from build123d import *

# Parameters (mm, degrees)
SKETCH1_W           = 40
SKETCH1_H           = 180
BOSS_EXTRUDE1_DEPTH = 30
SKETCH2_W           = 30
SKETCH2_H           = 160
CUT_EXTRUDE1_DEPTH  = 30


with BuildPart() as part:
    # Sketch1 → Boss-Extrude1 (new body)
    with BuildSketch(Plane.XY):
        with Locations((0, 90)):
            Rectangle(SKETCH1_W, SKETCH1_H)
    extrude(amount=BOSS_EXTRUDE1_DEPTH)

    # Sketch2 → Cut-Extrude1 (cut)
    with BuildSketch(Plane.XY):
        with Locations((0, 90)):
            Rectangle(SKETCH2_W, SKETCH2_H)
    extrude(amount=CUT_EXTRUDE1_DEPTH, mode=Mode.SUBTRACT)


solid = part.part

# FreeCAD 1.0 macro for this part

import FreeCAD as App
import Part
import Sketcher
Q = App.Units.Quantity

doc = App.newDocument("Part")
body = doc.addObject("PartDesign::Body", "Body")

sketch1 = doc.addObject("Sketcher::SketchObject", "Sketch")
body.addObject(sketch1)
sketch1.AttachmentSupport = (doc.XY_Plane, [""])
sketch1.MapMode = "FlatFace"
sketch1.addGeometry([
    Part.LineSegment(App.Vector(-20, 180, 0), App.Vector(-20, 0, 0)),
    Part.LineSegment(App.Vector(-20, 0, 0), App.Vector(20, 0, 0)),
    Part.LineSegment(App.Vector(20, 0, 0), App.Vector(20, 180, 0)),
    Part.LineSegment(App.Vector(20, 180, 0), App.Vector(-20, 180, 0)),
], False)
sketch1.addConstraint([
    Sketcher.Constraint("Coincident", 0, 2, 1, 1),
    Sketcher.Constraint("Coincident", 1, 2, 2, 1),
    Sketcher.Constraint("Coincident", 2, 2, 3, 1),
    Sketcher.Constraint("Coincident", 3, 2, 0, 1),
    Sketcher.Constraint("Vertical", 0),
    Sketcher.Constraint("Horizontal", 1),
    Sketcher.Constraint("Vertical", 2),
    Sketcher.Constraint("Horizontal", 3),
    Sketcher.Constraint("Symmetric", 0, 2, 1, 2, -1, 1),
    Sketcher.Constraint("DistanceX", 1, 1, 1, 2, Q("40 mm")),
    Sketcher.Constraint("DistanceY", 0, 2, 0, 1, Q("180 mm")),
])
pad1 = doc.addObject("PartDesign::Pad", "Pad")
body.addObject(pad1)
pad1.Profile = sketch1
pad1.Length = 30

sketch2 = doc.addObject("Sketcher::SketchObject", "Sketch001")
body.addObject(sketch2)
sketch2.AttachmentSupport = (doc.XY_Plane, [""])
sketch2.MapMode = "FlatFace"
sketch2.addGeometry([
    Part.LineSegment(App.Vector(-15, 170, 0), App.Vector(-15, 10, 0)),
    Part.LineSegment(App.Vector(-15, 10, 0), App.Vector(15, 10, 0)),
    Part.LineSegment(App.Vector(15, 10, 0), App.Vector(15, 170, 0)),
    Part.LineSegment(App.Vector(15, 170, 0), App.Vector(-15, 170, 0)),
], False)
sketch2.addConstraint([
    Sketcher.Constraint("Coincident", 0, 2, 1, 1),
    Sketcher.Constraint("Coincident", 1, 2, 2, 1),
    Sketcher.Constraint("Coincident", 2, 2, 3, 1),
    Sketcher.Constraint("Coincident", 3, 2, 0, 1),
    Sketcher.Constraint("Vertical", 0),
    Sketcher.Constraint("Horizontal", 1),
    Sketcher.Constraint("Vertical", 2),
    Sketcher.Constraint("Horizontal", 3),
    Sketcher.Constraint("DistanceX", 1, 1, 1, 2, Q("30 mm")),
    Sketcher.Constraint("DistanceY", 0, 2, 0, 1, Q("160 mm")),
    Sketcher.Constraint("DistanceX", 0, 2, -1, 1, Q("15 mm")),
    Sketcher.Constraint("DistanceY", -1, 1, 0, 2, Q("10 mm")),
])
pocket1 = doc.addObject("PartDesign::Pocket", "Pocket")
body.addObject(pocket1)
pocket1.Profile = sketch2
pocket1.Length = 30
pocket1.Reversed = True

doc.recompute()
